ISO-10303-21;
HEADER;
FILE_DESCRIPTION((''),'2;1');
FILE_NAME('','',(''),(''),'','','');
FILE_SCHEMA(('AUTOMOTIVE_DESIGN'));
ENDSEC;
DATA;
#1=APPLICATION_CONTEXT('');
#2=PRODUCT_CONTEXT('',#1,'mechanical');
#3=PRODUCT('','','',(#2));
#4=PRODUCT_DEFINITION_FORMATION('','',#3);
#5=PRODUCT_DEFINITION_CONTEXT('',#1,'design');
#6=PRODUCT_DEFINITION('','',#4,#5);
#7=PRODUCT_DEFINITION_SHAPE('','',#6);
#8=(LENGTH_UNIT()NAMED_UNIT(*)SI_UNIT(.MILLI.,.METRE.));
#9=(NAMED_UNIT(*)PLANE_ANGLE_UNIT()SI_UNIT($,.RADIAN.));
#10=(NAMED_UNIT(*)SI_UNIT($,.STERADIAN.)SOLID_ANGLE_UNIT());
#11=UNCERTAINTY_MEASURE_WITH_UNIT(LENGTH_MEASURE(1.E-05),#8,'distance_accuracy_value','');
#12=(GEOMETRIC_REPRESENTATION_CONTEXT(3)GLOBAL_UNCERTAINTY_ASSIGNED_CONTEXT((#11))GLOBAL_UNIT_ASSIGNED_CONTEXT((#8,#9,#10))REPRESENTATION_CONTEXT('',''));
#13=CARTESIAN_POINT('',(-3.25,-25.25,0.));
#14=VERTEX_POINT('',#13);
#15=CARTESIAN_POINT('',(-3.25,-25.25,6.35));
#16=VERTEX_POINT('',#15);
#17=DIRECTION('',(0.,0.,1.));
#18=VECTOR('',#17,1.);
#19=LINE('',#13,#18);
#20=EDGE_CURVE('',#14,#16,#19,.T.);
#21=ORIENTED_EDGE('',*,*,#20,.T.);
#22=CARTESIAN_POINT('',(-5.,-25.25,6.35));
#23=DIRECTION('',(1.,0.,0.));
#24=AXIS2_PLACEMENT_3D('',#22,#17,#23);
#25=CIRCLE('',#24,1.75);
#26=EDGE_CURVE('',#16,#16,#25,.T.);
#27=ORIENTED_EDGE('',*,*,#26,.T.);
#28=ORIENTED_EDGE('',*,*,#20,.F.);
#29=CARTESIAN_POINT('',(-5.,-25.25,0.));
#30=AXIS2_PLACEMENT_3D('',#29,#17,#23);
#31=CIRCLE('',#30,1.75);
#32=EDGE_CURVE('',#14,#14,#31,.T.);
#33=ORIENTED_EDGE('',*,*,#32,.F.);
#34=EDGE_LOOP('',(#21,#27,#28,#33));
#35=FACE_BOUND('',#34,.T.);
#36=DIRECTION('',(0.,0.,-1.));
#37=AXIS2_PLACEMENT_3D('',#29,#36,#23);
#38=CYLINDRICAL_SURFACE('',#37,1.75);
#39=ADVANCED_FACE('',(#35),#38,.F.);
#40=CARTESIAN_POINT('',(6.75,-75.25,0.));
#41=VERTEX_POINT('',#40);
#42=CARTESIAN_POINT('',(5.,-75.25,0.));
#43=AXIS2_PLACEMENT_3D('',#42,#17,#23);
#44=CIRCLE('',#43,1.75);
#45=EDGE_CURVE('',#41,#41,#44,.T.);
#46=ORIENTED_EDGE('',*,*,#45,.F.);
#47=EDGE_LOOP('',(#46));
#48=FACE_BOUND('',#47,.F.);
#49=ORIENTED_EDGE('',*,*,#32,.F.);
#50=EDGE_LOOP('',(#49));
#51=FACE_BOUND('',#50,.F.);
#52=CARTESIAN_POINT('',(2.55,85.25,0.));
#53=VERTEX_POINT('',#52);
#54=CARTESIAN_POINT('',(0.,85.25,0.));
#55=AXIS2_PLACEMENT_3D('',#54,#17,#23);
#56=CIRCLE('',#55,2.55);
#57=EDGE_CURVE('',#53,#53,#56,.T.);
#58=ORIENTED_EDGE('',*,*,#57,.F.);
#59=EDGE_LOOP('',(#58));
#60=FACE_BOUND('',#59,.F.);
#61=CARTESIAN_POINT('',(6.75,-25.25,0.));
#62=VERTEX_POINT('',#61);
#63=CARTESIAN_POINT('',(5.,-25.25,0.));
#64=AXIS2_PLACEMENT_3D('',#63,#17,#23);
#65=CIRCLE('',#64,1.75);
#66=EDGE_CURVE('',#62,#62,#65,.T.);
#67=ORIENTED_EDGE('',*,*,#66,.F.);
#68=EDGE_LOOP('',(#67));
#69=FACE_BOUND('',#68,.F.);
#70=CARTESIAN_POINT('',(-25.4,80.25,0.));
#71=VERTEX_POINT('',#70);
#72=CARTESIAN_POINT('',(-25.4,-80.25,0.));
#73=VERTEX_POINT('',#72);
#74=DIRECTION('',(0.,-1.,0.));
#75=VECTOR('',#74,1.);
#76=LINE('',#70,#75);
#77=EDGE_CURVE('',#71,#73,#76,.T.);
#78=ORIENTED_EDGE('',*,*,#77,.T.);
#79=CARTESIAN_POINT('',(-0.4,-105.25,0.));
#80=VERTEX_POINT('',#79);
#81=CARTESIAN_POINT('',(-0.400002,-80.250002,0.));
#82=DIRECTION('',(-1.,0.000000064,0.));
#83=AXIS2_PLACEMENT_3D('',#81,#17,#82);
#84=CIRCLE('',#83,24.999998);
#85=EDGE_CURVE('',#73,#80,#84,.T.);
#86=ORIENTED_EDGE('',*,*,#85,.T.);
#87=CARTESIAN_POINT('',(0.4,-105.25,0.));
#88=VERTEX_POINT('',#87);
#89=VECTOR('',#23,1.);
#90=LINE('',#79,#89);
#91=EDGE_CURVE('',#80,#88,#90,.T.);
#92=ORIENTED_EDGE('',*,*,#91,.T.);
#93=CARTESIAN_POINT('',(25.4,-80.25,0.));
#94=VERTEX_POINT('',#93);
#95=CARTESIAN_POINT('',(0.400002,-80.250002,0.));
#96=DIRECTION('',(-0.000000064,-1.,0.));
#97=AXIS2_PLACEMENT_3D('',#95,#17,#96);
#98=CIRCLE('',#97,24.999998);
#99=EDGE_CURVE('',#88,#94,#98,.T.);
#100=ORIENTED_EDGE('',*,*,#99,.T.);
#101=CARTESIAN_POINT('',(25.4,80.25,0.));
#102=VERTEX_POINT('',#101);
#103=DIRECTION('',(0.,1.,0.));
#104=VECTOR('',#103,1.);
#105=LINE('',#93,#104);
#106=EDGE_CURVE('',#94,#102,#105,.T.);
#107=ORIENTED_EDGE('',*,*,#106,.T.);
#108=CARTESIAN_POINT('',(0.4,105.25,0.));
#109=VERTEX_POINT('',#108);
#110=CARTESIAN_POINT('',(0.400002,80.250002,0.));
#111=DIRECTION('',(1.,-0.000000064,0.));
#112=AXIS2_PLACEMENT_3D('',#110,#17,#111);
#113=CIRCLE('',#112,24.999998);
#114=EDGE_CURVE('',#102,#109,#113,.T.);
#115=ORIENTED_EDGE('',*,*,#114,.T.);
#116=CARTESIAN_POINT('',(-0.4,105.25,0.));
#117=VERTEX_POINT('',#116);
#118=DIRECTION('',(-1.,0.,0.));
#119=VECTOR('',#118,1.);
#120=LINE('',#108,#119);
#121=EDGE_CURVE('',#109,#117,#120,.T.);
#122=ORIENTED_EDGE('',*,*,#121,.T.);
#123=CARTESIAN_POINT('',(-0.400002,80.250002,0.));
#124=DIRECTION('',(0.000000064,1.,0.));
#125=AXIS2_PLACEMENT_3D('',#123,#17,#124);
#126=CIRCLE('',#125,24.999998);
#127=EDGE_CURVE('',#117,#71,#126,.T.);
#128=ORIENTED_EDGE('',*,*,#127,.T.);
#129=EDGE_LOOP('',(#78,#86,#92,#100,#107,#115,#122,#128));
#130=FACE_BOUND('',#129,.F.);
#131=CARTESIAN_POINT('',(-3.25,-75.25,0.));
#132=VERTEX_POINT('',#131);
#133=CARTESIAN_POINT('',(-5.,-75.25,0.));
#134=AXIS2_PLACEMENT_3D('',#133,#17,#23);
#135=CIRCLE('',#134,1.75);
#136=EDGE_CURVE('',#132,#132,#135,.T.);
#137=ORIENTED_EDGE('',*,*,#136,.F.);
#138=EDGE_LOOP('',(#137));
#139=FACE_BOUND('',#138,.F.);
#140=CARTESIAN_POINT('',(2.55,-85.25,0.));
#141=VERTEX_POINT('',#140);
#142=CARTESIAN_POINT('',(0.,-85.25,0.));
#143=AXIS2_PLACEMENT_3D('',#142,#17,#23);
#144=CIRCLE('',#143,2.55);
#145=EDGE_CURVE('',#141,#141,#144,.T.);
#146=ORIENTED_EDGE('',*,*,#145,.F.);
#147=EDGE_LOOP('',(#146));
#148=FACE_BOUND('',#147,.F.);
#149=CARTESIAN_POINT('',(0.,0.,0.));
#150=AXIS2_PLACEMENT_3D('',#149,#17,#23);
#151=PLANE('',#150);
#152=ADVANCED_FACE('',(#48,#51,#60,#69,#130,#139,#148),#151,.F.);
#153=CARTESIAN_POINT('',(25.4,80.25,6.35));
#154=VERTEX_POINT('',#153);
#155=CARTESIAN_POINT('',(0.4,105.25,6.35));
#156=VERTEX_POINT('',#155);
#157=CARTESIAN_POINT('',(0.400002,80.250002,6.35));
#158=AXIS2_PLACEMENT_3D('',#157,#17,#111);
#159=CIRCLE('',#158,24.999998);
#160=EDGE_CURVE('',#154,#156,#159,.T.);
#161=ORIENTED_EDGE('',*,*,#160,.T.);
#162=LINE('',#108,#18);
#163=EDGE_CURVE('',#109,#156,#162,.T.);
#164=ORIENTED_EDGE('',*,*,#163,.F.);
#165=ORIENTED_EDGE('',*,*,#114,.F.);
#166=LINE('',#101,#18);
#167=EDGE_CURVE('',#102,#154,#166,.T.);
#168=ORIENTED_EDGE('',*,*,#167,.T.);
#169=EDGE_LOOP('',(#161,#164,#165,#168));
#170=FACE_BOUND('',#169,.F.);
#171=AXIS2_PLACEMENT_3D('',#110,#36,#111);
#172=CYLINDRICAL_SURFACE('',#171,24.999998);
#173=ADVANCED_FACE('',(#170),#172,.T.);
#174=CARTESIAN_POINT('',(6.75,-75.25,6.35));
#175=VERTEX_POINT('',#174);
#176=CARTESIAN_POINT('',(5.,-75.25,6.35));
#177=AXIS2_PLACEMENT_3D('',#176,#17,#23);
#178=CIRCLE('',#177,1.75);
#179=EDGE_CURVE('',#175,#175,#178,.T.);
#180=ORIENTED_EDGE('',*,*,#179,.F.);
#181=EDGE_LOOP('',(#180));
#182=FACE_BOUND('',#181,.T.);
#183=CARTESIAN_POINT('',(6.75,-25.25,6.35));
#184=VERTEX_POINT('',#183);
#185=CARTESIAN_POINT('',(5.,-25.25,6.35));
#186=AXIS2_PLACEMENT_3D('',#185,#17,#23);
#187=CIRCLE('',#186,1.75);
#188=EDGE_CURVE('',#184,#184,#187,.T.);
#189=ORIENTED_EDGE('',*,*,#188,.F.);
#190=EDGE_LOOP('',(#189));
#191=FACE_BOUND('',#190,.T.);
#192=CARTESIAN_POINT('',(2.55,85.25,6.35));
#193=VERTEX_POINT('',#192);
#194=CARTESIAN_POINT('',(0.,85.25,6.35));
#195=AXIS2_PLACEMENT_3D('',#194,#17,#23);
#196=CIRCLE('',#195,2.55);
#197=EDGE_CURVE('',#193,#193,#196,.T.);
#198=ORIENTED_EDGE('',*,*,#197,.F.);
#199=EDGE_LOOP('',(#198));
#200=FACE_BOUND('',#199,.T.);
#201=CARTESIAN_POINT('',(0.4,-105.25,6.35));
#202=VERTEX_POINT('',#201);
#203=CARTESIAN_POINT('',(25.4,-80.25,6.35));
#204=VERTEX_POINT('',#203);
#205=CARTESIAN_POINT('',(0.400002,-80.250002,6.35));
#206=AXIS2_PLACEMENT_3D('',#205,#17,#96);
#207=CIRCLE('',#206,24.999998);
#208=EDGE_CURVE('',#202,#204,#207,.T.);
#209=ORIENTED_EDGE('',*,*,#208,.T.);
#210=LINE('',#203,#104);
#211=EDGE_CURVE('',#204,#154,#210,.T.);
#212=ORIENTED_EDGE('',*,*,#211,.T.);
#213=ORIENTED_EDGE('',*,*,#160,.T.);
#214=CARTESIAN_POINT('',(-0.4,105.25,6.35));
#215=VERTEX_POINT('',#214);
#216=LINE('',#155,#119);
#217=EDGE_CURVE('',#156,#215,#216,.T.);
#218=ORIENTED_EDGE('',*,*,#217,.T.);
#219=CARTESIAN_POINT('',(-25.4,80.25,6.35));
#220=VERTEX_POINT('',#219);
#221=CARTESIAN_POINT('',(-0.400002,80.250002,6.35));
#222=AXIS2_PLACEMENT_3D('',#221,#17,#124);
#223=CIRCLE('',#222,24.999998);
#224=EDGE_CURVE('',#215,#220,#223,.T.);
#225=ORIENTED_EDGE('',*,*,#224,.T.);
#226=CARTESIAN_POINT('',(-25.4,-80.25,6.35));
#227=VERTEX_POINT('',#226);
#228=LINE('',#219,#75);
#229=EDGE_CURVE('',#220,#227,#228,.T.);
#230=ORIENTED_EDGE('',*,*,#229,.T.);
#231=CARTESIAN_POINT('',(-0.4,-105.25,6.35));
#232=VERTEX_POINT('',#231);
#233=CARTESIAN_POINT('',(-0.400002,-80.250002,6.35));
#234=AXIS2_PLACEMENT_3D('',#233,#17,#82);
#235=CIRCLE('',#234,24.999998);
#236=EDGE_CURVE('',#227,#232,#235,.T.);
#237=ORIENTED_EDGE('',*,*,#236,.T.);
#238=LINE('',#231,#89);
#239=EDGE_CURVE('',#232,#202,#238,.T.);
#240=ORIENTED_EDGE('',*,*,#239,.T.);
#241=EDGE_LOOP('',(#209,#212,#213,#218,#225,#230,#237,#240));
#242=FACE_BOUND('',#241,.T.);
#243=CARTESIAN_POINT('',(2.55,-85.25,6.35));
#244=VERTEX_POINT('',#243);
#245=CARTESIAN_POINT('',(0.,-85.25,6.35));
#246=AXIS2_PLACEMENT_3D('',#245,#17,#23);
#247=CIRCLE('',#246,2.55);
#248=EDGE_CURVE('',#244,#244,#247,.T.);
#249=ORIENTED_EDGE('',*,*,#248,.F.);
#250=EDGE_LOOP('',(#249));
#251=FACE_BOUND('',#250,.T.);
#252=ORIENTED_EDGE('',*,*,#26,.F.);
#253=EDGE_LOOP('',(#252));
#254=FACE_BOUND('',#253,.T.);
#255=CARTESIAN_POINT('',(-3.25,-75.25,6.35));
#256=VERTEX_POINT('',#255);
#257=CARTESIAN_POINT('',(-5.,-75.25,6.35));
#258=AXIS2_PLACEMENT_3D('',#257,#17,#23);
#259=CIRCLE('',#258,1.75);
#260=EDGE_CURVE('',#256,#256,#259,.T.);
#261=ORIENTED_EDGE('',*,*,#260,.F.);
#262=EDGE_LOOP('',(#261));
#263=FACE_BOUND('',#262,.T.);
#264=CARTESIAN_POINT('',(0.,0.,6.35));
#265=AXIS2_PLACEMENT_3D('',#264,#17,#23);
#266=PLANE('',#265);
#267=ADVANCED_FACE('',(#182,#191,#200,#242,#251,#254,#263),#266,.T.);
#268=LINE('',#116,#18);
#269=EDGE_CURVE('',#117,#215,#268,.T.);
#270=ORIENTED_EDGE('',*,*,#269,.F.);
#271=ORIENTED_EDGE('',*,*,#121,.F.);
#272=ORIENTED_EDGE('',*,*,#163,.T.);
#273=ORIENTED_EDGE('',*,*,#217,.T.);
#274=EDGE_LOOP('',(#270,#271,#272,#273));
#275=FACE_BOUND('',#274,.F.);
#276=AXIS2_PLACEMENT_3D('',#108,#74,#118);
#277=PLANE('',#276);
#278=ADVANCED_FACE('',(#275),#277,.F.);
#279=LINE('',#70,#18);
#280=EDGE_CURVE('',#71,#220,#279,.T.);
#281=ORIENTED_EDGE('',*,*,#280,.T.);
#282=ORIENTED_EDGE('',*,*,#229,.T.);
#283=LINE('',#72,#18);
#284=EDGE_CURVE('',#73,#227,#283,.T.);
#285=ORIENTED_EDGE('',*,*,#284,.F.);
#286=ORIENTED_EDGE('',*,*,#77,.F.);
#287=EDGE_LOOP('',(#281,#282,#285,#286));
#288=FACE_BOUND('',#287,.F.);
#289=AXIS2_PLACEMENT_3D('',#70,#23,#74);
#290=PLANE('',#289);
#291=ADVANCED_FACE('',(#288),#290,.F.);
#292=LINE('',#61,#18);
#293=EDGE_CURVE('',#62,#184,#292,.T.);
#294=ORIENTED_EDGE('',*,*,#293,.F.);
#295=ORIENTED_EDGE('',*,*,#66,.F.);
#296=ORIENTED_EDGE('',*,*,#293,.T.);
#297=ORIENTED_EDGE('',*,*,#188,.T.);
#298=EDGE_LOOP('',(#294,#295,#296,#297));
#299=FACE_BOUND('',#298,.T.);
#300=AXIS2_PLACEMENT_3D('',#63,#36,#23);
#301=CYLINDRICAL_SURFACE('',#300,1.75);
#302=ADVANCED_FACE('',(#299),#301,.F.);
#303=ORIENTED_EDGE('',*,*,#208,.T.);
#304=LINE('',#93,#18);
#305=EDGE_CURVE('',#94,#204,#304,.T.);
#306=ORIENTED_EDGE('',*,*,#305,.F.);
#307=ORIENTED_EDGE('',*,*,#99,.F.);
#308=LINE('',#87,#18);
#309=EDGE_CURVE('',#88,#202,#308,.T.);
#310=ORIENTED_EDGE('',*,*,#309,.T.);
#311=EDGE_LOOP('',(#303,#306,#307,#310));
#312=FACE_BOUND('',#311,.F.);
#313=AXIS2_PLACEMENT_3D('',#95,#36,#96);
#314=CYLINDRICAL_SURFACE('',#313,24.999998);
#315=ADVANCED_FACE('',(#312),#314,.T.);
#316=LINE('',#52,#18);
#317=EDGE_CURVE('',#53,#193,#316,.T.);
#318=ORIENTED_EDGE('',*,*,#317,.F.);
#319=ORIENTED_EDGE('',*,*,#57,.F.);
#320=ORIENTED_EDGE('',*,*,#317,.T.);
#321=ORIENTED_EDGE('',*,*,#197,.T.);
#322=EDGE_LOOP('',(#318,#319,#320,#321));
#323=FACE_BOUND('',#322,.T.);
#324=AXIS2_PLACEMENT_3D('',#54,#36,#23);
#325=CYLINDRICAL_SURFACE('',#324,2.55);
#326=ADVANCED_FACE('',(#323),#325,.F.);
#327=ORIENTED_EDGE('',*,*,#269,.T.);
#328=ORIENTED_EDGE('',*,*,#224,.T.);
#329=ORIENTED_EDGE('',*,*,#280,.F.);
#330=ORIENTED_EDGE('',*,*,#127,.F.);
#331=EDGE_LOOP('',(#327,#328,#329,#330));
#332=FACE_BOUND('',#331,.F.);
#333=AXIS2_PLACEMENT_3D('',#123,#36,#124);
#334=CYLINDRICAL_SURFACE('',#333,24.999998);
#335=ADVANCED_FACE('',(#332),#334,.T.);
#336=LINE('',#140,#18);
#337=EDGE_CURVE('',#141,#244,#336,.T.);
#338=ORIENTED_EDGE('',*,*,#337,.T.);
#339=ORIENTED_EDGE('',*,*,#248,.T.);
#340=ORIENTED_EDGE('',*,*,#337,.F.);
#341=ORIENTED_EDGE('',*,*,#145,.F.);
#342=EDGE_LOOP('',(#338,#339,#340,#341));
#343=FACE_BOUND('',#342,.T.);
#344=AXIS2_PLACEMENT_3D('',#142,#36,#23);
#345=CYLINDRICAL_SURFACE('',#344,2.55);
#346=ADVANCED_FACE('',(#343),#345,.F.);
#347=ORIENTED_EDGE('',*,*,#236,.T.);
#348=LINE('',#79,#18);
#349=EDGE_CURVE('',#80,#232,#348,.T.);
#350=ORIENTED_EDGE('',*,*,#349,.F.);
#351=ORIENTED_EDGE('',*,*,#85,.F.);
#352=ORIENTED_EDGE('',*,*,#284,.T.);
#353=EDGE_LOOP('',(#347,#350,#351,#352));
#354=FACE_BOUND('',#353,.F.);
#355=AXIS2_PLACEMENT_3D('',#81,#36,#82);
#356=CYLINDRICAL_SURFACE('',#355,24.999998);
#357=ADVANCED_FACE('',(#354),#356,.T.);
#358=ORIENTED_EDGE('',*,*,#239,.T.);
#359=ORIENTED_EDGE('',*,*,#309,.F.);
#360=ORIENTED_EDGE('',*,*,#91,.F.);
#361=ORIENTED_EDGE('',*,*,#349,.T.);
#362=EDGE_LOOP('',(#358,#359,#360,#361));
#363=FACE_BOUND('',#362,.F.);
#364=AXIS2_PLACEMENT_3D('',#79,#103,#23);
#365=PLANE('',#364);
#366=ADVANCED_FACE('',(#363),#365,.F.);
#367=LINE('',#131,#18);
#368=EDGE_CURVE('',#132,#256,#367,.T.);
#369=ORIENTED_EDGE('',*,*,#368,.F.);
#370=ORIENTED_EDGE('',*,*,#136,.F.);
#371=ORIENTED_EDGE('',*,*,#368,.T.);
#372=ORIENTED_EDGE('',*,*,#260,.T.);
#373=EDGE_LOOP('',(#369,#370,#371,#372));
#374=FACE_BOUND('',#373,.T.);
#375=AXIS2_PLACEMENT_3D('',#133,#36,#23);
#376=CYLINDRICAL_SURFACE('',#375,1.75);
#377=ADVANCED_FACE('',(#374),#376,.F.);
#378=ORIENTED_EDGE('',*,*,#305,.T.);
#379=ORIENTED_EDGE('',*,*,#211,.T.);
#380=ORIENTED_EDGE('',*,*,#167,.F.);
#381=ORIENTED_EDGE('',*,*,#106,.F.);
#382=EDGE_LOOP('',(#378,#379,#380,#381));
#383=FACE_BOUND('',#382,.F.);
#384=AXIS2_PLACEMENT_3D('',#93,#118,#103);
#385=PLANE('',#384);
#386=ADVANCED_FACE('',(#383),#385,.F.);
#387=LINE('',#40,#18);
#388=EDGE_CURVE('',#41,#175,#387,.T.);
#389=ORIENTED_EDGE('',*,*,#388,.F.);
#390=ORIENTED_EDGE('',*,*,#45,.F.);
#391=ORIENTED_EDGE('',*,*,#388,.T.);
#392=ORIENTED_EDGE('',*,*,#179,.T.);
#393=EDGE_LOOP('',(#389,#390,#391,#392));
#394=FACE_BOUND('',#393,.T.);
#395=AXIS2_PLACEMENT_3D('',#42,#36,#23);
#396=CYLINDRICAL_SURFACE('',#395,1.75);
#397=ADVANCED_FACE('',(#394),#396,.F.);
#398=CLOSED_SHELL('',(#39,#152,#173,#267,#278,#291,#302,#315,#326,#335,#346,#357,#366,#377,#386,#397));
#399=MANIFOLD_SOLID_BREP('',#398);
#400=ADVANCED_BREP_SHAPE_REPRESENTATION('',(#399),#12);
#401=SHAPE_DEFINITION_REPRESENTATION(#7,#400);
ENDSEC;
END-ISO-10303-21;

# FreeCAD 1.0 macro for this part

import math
import FreeCAD as App
import Part
import Sketcher

V = App.Vector
Q = App.Units.Quantity

doc = App.newDocument("Part")
body = doc.addObject("PartDesign::Body", "Body")

sketch1 = body.newObject("Sketcher::SketchObject", "Sketch")
sketch1.AttachmentSupport = (doc.getObject("XY_Plane"), [""])
sketch1.MapMode = "FlatFace"
sketch1.addGeometry(Part.ArcOfCircle(Part.Circle(V(0.4, 80.3, 0), V(0, 0, 1), 25), math.radians(0), math.radians(90)), False)
sketch1.addGeometry(Part.LineSegment(V(0.4, 105.2, 0), V(-0.4, 105.2, 0)), False)
sketch1.addGeometry(Part.ArcOfCircle(Part.Circle(V(-0.4, 80.3, 0), V(0, 0, 1), 25), math.radians(90), math.radians(180)), False)
sketch1.addGeometry(Part.LineSegment(V(-25.4, 80.2, 0), V(-25.4, -80.2, 0)), False)
sketch1.addGeometry(Part.ArcOfCircle(Part.Circle(V(-0.4, -80.3, 0), V(0, 0, 1), 25), math.radians(180), math.radians(270)), False)
sketch1.addGeometry(Part.LineSegment(V(-0.4, -105.2, 0), V(0.4, -105.2, 0)), False)
sketch1.addGeometry(Part.ArcOfCircle(Part.Circle(V(0.4, -80.3, 0), V(0, 0, 1), 25), math.radians(-90), math.radians(0)), False)
sketch1.addGeometry(Part.LineSegment(V(25.4, -80.2, 0), V(25.4, 80.2, 0)), False)
sketch1.addGeometry(Part.Circle(V(-5, -75.2, 0), V(0, 0, 1), 1.8), False)
sketch1.addGeometry(Part.Circle(V(-5, -25.2, 0), V(0, 0, 1), 1.8), False)
sketch1.addGeometry(Part.Circle(V(0, -85.2, 0), V(0, 0, 1), 2.5), False)
sketch1.addGeometry(Part.Circle(V(5, -75.2, 0), V(0, 0, 1), 1.8), False)
sketch1.addGeometry(Part.Circle(V(5, -25.2, 0), V(0, 0, 1), 1.8), False)
sketch1.addGeometry(Part.Circle(V(0, 85.2, 0), V(0, 0, 1), 2.5), False)
sketch1.addConstraint(Sketcher.Constraint("Tangent", 0, 2, 1, 1))
sketch1.addConstraint(Sketcher.Constraint("Tangent", 1, 2, 2, 1))
sketch1.addConstraint(Sketcher.Constraint("Tangent", 2, 2, 3, 1))
sketch1.addConstraint(Sketcher.Constraint("Tangent", 3, 2, 4, 1))
sketch1.addConstraint(Sketcher.Constraint("Tangent", 4, 2, 5, 1))
sketch1.addConstraint(Sketcher.Constraint("Tangent", 5, 2, 6, 1))
sketch1.addConstraint(Sketcher.Constraint("Tangent", 6, 2, 7, 1))
sketch1.addConstraint(Sketcher.Constraint("Tangent", 7, 2, 0, 1))
sketch1.addConstraint(Sketcher.Constraint("Horizontal", 1))
sketch1.addConstraint(Sketcher.Constraint("Vertical", 3))
sketch1.addConstraint(Sketcher.Constraint("Horizontal", 5))
sketch1.addConstraint(Sketcher.Constraint("Vertical", 7))
sketch1.addConstraint(Sketcher.Constraint("Equal", 0, 2))
sketch1.addConstraint(Sketcher.Constraint("Equal", 2, 4))
sketch1.addConstraint(Sketcher.Constraint("Equal", 4, 6))
sketch1.addConstraint(Sketcher.Constraint("Equal", 8, 9))
sketch1.addConstraint(Sketcher.Constraint("Equal", 9, 11))
sketch1.addConstraint(Sketcher.Constraint("Equal", 11, 12))
sketch1.addConstraint(Sketcher.Constraint("Equal", 10, 13))
sketch1.addConstraint(Sketcher.Constraint("Symmetric", 0, 3, 4, 3, -1, 1))
sketch1.addConstraint(Sketcher.Constraint("Symmetric", 10, 3, 13, 3, -1, 1))
sketch1.addConstraint(Sketcher.Constraint("Symmetric", 8, 3, 11, 3, -2))
sketch1.addConstraint(Sketcher.Constraint("Symmetric", 9, 3, 12, 3, -2))
sketch1.addConstraint(Sketcher.Constraint("PointOnObject", 10, 3, -2))
sketch1.addConstraint(Sketcher.Constraint("Vertical", 8, 3, 9, 3))
sketch1.addConstraint(Sketcher.Constraint("Radius", 0, Q("24.999998 mm")))
sketch1.addConstraint(Sketcher.Constraint("Diameter", 8, Q("3.5 mm")))
sketch1.addConstraint(Sketcher.Constraint("Diameter", 10, Q("5.1 mm")))
sketch1.addConstraint(Sketcher.Constraint("DistanceX", 1, 2, 1, 1, Q("0.8 mm")))
sketch1.addConstraint(Sketcher.Constraint("DistanceY", 3, 2, 3, 1, Q("160.5 mm")))
sketch1.addConstraint(Sketcher.Constraint("DistanceX", 8, 3, -1, 1, Q("5 mm")))
sketch1.addConstraint(Sketcher.Constraint("DistanceY", 4, 3, 8, 3, Q("5.000002 mm")))
sketch1.addConstraint(Sketcher.Constraint("DistanceY", 8, 3, 9, 3, Q("50 mm")))
sketch1.addConstraint(Sketcher.Constraint("DistanceY", 10, 3, 4, 3, Q("4.999998 mm")))
pad1 = body.newObject("PartDesign::Pad", "Pad")
pad1.Profile = sketch1
pad1.Length = 6.35

doc.recompute()
